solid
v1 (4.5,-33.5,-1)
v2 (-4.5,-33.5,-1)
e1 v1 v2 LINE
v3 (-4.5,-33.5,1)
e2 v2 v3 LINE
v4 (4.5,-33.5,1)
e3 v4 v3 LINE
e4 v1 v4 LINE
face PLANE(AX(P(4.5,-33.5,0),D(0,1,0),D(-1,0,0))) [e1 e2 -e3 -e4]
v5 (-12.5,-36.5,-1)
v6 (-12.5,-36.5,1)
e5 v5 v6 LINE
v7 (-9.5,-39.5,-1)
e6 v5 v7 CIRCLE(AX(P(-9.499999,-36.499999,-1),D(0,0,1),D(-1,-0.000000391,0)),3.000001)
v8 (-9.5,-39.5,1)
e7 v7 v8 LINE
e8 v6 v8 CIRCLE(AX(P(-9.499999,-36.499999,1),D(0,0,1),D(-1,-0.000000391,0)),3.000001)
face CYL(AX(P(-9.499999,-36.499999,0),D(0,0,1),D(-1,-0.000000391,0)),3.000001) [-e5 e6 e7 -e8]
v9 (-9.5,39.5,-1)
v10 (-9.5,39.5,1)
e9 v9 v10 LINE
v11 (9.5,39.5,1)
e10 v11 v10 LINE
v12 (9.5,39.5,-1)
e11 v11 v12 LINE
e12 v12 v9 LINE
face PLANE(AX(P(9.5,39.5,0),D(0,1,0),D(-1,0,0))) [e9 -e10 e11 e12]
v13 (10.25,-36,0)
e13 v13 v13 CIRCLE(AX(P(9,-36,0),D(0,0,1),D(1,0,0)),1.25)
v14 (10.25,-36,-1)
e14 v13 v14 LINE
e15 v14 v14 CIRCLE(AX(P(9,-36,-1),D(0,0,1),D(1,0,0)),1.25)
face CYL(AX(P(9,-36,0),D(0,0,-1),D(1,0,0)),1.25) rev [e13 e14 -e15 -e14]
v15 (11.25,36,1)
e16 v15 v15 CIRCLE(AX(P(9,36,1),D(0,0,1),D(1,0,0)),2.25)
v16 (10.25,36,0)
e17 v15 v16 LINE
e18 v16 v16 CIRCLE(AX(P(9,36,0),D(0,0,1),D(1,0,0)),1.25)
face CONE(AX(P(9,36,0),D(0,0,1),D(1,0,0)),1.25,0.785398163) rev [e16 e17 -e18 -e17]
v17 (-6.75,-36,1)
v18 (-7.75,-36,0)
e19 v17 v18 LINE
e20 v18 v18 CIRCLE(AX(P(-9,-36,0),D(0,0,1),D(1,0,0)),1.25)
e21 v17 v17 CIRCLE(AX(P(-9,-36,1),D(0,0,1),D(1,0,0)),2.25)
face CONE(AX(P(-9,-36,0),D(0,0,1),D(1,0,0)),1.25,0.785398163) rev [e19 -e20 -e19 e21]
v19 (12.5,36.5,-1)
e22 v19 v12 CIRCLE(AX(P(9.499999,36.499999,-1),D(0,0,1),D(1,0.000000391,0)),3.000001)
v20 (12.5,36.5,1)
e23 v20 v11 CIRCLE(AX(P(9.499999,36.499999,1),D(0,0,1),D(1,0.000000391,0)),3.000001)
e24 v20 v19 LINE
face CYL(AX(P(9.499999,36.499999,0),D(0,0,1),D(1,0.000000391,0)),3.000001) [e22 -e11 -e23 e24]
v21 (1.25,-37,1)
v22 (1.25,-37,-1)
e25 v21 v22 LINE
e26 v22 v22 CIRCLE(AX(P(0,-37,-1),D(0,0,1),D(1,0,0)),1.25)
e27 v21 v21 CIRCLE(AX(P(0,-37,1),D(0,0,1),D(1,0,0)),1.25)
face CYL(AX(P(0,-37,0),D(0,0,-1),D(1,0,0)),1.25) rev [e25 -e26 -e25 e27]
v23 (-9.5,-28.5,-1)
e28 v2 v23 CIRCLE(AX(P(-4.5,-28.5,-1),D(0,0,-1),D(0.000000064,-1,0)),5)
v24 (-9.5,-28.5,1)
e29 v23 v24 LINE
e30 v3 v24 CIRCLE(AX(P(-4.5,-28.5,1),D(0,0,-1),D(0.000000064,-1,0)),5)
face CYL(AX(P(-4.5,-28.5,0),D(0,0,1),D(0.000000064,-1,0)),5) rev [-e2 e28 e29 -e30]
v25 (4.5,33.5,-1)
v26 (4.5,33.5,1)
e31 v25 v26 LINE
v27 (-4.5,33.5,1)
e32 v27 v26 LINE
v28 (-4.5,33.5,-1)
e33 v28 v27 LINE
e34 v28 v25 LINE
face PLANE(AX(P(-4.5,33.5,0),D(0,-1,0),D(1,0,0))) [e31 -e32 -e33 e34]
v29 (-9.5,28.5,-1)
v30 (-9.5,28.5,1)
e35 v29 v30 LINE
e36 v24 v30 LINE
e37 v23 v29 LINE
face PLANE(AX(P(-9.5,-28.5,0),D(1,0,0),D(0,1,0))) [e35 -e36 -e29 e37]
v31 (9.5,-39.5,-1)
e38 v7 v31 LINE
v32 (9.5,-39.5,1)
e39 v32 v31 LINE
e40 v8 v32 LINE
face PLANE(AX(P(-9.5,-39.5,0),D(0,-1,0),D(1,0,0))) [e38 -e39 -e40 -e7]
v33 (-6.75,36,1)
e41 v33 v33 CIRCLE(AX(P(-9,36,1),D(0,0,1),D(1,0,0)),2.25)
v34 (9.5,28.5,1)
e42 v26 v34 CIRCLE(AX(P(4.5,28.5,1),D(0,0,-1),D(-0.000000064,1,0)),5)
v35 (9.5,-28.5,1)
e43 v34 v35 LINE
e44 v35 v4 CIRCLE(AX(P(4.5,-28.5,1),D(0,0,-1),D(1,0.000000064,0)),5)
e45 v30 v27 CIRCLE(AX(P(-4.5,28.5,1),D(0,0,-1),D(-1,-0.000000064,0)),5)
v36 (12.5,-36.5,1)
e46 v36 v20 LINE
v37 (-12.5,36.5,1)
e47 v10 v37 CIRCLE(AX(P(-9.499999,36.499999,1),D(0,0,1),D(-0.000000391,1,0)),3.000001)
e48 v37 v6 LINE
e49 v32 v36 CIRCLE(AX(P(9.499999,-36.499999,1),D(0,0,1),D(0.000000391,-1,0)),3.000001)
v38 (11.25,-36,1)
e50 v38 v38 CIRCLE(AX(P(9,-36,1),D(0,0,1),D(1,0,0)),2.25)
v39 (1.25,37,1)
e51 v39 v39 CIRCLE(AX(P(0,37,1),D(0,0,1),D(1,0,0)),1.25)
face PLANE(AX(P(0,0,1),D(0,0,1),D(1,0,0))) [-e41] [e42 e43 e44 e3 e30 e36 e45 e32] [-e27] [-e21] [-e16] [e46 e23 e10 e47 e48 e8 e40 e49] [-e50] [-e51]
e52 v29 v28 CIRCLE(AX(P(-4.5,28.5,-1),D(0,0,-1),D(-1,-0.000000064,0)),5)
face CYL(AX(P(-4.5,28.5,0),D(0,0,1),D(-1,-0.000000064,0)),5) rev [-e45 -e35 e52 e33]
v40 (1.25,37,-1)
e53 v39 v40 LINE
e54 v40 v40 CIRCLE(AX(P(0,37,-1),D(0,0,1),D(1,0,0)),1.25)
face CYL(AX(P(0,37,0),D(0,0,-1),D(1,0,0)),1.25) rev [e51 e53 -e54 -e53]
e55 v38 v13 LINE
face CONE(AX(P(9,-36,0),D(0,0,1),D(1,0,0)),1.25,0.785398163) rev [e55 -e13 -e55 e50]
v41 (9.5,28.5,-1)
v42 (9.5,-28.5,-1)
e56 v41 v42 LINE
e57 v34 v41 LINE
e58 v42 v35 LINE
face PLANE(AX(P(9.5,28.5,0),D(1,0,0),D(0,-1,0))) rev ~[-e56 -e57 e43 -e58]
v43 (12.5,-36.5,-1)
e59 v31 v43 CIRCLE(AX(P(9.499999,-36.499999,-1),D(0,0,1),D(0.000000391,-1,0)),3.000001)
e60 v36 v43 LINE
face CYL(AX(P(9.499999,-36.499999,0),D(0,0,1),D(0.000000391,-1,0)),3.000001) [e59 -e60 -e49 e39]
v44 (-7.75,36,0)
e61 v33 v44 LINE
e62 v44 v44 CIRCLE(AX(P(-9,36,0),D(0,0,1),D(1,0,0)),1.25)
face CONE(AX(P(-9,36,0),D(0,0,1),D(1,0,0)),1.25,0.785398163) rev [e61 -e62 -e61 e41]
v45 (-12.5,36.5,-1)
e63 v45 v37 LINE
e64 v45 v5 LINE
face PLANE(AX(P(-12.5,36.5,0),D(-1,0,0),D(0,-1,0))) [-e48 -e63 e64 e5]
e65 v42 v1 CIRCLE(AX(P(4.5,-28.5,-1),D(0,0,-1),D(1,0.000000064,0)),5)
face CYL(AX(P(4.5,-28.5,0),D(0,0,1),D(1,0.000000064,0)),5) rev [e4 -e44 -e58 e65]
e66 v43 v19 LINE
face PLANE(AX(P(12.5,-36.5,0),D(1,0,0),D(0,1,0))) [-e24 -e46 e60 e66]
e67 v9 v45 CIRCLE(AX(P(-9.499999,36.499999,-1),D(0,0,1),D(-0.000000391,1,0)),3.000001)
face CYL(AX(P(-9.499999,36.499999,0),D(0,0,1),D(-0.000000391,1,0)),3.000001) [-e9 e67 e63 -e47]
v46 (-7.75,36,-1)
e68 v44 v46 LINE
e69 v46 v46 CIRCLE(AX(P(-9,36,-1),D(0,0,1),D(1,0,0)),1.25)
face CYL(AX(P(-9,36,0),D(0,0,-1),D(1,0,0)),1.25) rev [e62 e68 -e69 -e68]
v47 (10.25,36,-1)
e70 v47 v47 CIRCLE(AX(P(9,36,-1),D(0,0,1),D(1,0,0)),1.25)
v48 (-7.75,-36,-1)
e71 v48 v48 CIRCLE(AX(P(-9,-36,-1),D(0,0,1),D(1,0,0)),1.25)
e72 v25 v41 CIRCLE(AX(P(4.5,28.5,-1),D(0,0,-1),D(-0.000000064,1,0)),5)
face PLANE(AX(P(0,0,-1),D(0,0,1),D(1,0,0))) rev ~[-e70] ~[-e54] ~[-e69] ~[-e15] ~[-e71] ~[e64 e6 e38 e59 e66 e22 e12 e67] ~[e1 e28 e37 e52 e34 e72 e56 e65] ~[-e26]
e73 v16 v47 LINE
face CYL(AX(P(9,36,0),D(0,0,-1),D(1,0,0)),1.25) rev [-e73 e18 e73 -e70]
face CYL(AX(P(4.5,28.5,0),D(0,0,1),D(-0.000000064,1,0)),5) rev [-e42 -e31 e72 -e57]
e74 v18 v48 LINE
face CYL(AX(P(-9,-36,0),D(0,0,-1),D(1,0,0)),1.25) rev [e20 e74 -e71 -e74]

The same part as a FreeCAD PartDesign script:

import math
import FreeCAD as App
import Part
import Sketcher


def edges_at(feature, points):
    """Names of the edges that pass closest to the given points."""
    edges = feature.Shape.Edges
    near = lambda p: min(range(len(edges)), key=lambda i: edges[i].distToShape(Part.Vertex(*p))[0])
    return sorted({f"Edge{near(p) + 1}" for p in points})

doc = App.newDocument("Part")
params = doc.addObject("Spreadsheet::Sheet", "Params")
for row, (alias, value) in enumerate([
    ("sketch1_radius", "3.000001 mm"),
    ("sketch1_radius2", "5 mm"),
    ("sketch1_diameter", "2.5 mm"),
    ("sketch1_width", "19 mm"),
    ("sketch1_height", "73 mm"),
    ("pad1_length", "2 mm"),
    ("chamfer_size", "1 mm"),
], start=1):
    params.set(f"A{row}", alias)
    params.set(f"B{row}", "=" + value)
    params.setAlias(f"B{row}", alias)

body = doc.addObject("PartDesign::Body", "Body")

# Sketch on XY plane
sketch1 = body.newObject("Sketcher::SketchObject", "Sketch")
sketch1.AttachmentSupport = (doc.getObject("XY_Plane"), [""])
sketch1.MapMode = "FlatFace"
sketch1.addGeometry(Part.LineSegment(App.Vector(9.5, 39.5, 0), App.Vector(-9.5, 39.5, 0)), False)
sketch1.addGeometry(Part.ArcOfCircle(Part.Circle(App.Vector(-9.5, 36.5, 0), App.Vector(0, 0, 1), 3), math.radians(90), math.radians(180)), False)
sketch1.addGeometry(Part.LineSegment(App.Vector(-12.5, 36.5, 0), App.Vector(-12.5, -36.5, 0)), False)
sketch1.addGeometry(Part.ArcOfCircle(Part.Circle(App.Vector(-9.5, -36.5, 0), App.Vector(0, 0, 1), 3), math.radians(-180), math.radians(-90)), False)
sketch1.addGeometry(Part.LineSegment(App.Vector(-9.5, -39.5, 0), App.Vector(9.5, -39.5, 0)), False)
sketch1.addGeometry(Part.ArcOfCircle(Part.Circle(App.Vector(9.5, -36.5, 0), App.Vector(0, 0, 1), 3), math.radians(-90), math.radians(0)), False)
sketch1.addGeometry(Part.LineSegment(App.Vector(12.5, -36.5, 0), App.Vector(12.5, 36.5, 0)), False)
sketch1.addGeometry(Part.ArcOfCircle(Part.Circle(App.Vector(9.5, 36.5, 0), App.Vector(0, 0, 1), 3), math.radians(0), math.radians(90)), False)
sketch1.addGeometry(Part.Circle(App.Vector(-9, -36, 0), App.Vector(0, 0, 1), 1.2), False)
sketch1.addGeometry(Part.Circle(App.Vector(0, -37, 0), App.Vector(0, 0, 1), 1.2), False)
sketch1.addGeometry(Part.Circle(App.Vector(9, -36, 0), App.Vector(0, 0, 1), 1.2), False)
sketch1.addGeometry(Part.Circle(App.Vector(-9, 36, 0), App.Vector(0, 0, 1), 1.2), False)
sketch1.addGeometry(Part.LineSegment(App.Vector(-9.5, -28.5, 0), App.Vector(-9.5, 28.5, 0)), False)
sketch1.addGeometry(Part.ArcOfCircle(Part.Circle(App.Vector(-4.5, 28.5, 0), App.Vector(0, 0, 1), 5), math.radians(90), math.radians(180)), False)
sketch1.addGeometry(Part.LineSegment(App.Vector(-4.5, 33.5, 0), App.Vector(4.5, 33.5, 0)), False)
sketch1.addGeometry(Part.ArcOfCircle(Part.Circle(App.Vector(4.5, 28.5, 0), App.Vector(0, 0, 1), 5), math.radians(0), math.radians(90)), False)
sketch1.addGeometry(Part.LineSegment(App.Vector(9.5, 28.5, 0), App.Vector(9.5, -28.5, 0)), False)
sketch1.addGeometry(Part.ArcOfCircle(Part.Circle(App.Vector(4.5, -28.5, 0), App.Vector(0, 0, 1), 5), math.radians(-90), math.radians(0)), False)
sketch1.addGeometry(Part.LineSegment(App.Vector(4.5, -33.5, 0), App.Vector(-4.5, -33.5, 0)), False)
sketch1.addGeometry(Part.ArcOfCircle(Part.Circle(App.Vector(-4.5, -28.5, 0), App.Vector(0, 0, 1), 5), math.radians(180), math.radians(270)), False)
sketch1.addGeometry(Part.Circle(App.Vector(0, 37, 0), App.Vector(0, 0, 1), 1.2), False)
sketch1.addGeometry(Part.Circle(App.Vector(9, 36, 0), App.Vector(0, 0, 1), 1.2), False)
sketch1.addConstraint(Sketcher.Constraint("Tangent", 0, 2, 1, 1))
sketch1.addConstraint(Sketcher.Constraint("Tangent", 1, 2, 2, 1))
sketch1.addConstraint(Sketcher.Constraint("Tangent", 2, 2, 3, 1))
sketch1.addConstraint(Sketcher.Constraint("Tangent", 3, 2, 4, 1))
sketch1.addConstraint(Sketcher.Constraint("Tangent", 4, 2, 5, 1))
sketch1.addConstraint(Sketcher.Constraint("Tangent", 5, 2, 6, 1))
sketch1.addConstraint(Sketcher.Constraint("Tangent", 6, 2, 7, 1))
sketch1.addConstraint(Sketcher.Constraint("Tangent", 7, 2, 0, 1))
sketch1.addConstraint(Sketcher.Constraint("Tangent", 12, 2, 13, 2))
sketch1.addConstraint(Sketcher.Constraint("Tangent", 13, 1, 14, 1))
sketch1.addConstraint(Sketcher.Constraint("Tangent", 14, 2, 15, 2))
sketch1.addConstraint(Sketcher.Constraint("Tangent", 15, 1, 16, 1))
sketch1.addConstraint(Sketcher.Constraint("Tangent", 16, 2, 17, 2))
sketch1.addConstraint(Sketcher.Constraint("Tangent", 17, 1, 18, 1))
sketch1.addConstraint(Sketcher.Constraint("Tangent", 18, 2, 19, 2))
sketch1.addConstraint(Sketcher.Constraint("Tangent", 19, 1, 12, 1))
sketch1.addConstraint(Sketcher.Constraint("Horizontal", 0))
sketch1.addConstraint(Sketcher.Constraint("Vertical", 2))
sketch1.addConstraint(Sketcher.Constraint("Horizontal", 4))
sketch1.addConstraint(Sketcher.Constraint("Vertical", 6))
sketch1.addConstraint(Sketcher.Constraint("Vertical", 12))
sketch1.addConstraint(Sketcher.Constraint("Horizontal", 14))
sketch1.addConstraint(Sketcher.Constraint("Vertical", 16))
sketch1.addConstraint(Sketcher.Constraint("Horizontal", 18))
sketch1.addConstraint(Sketcher.Constraint("Equal", 1, 3))
sketch1.addConstraint(Sketcher.Constraint("Equal", 3, 5))
sketch1.addConstraint(Sketcher.Constraint("Equal", 5, 7))
sketch1.addConstraint(Sketcher.Constraint("Equal", 8, 9))
sketch1.addConstraint(Sketcher.Constraint("Equal", 9, 10))
sketch1.addConstraint(Sketcher.Constraint("Equal", 10, 11))
sketch1.addConstraint(Sketcher.Constraint("Equal", 13, 15))
sketch1.addConstraint(Sketcher.Constraint("Equal", 15, 17))
sketch1.addConstraint(Sketcher.Constraint("Equal", 17, 19))
sketch1.addConstraint(Sketcher.Constraint("Equal", 11, 20))
sketch1.addConstraint(Sketcher.Constraint("Equal", 20, 21))
sketch1.addConstraint(Sketcher.Constraint("Symmetric", 1, 3, 5, 3, -1, 1))
sketch1.addConstraint(Sketcher.Constraint("Symmetric", 10, 3, 11, 3, -1, 1))
sketch1.addConstraint(Sketcher.Constraint("Symmetric", 13, 3, 17, 3, -1, 1))
sketch1.addConstraint(Sketcher.Constraint("Symmetric", 9, 3, 20, 3, -1, 1))
sketch1.addConstraint(Sketcher.Constraint("Symmetric", 8, 3, 21, 3, -1, 1))
sketch1.addConstraint(Sketcher.Constraint("Symmetric", 8, 3, 10, 3, -2))
sketch1.addConstraint(Sketcher.Constraint("PointOnObject", 9, 3, -2))
sketch1.addConstraint(Sketcher.Constraint("Vertical", 3, 2, 12, 2))
sketch1.addConstraint(Sketcher.Constraint("Radius", 1, 3.000001))
sketch1.addConstraint(Sketcher.Constraint("Radius", 13, 5.0))
sketch1.addConstraint(Sketcher.Constraint("Diameter", 8, 2.5))
sketch1.addConstraint(Sketcher.Constraint("DistanceX", 0, 2, 0, 1, 19.0))
sketch1.addConstraint(Sketcher.Constraint("DistanceY", 2, 2, 2, 1, 73.0))
sketch1.addConstraint(Sketcher.Constraint("DistanceY", 12, 1, 12, 2, 57.0))
sketch1.addConstraint(Sketcher.Constraint("DistanceX", 8, 3, -1, 1, 9.0))
sketch1.addConstraint(Sketcher.Constraint("DistanceY", 8, 3, -1, 1, 36.0))
sketch1.addConstraint(Sketcher.Constraint("DistanceY", 9, 3, -1, 1, 37.0))
sketch1.setExpression("Constraints[43]", "Params.sketch1_radius")
sketch1.setExpression("Constraints[44]", "Params.sketch1_radius2")
sketch1.setExpression("Constraints[45]", "Params.sketch1_diameter")
sketch1.setExpression("Constraints[46]", "Params.sketch1_width")
sketch1.setExpression("Constraints[47]", "Params.sketch1_height")
pad1 = body.newObject("PartDesign::Pad", "Pad")
pad1.Profile = sketch1
pad1.setExpression("Length", "Params.pad1_length")
pad1.Midplane = True
doc.recompute()

chamfer = body.newObject("PartDesign::Chamfer", "Chamfer")
chamfer.Base = (pad1, edges_at(pad1, [
    (-10.25, 36, 1),
    (7.75, 36, 1),
    (7.75, -36, 1),
    (-10.25, -36, 1),
]))
chamfer.setExpression("Size", "Params.chamfer_size")

doc.recompute()
